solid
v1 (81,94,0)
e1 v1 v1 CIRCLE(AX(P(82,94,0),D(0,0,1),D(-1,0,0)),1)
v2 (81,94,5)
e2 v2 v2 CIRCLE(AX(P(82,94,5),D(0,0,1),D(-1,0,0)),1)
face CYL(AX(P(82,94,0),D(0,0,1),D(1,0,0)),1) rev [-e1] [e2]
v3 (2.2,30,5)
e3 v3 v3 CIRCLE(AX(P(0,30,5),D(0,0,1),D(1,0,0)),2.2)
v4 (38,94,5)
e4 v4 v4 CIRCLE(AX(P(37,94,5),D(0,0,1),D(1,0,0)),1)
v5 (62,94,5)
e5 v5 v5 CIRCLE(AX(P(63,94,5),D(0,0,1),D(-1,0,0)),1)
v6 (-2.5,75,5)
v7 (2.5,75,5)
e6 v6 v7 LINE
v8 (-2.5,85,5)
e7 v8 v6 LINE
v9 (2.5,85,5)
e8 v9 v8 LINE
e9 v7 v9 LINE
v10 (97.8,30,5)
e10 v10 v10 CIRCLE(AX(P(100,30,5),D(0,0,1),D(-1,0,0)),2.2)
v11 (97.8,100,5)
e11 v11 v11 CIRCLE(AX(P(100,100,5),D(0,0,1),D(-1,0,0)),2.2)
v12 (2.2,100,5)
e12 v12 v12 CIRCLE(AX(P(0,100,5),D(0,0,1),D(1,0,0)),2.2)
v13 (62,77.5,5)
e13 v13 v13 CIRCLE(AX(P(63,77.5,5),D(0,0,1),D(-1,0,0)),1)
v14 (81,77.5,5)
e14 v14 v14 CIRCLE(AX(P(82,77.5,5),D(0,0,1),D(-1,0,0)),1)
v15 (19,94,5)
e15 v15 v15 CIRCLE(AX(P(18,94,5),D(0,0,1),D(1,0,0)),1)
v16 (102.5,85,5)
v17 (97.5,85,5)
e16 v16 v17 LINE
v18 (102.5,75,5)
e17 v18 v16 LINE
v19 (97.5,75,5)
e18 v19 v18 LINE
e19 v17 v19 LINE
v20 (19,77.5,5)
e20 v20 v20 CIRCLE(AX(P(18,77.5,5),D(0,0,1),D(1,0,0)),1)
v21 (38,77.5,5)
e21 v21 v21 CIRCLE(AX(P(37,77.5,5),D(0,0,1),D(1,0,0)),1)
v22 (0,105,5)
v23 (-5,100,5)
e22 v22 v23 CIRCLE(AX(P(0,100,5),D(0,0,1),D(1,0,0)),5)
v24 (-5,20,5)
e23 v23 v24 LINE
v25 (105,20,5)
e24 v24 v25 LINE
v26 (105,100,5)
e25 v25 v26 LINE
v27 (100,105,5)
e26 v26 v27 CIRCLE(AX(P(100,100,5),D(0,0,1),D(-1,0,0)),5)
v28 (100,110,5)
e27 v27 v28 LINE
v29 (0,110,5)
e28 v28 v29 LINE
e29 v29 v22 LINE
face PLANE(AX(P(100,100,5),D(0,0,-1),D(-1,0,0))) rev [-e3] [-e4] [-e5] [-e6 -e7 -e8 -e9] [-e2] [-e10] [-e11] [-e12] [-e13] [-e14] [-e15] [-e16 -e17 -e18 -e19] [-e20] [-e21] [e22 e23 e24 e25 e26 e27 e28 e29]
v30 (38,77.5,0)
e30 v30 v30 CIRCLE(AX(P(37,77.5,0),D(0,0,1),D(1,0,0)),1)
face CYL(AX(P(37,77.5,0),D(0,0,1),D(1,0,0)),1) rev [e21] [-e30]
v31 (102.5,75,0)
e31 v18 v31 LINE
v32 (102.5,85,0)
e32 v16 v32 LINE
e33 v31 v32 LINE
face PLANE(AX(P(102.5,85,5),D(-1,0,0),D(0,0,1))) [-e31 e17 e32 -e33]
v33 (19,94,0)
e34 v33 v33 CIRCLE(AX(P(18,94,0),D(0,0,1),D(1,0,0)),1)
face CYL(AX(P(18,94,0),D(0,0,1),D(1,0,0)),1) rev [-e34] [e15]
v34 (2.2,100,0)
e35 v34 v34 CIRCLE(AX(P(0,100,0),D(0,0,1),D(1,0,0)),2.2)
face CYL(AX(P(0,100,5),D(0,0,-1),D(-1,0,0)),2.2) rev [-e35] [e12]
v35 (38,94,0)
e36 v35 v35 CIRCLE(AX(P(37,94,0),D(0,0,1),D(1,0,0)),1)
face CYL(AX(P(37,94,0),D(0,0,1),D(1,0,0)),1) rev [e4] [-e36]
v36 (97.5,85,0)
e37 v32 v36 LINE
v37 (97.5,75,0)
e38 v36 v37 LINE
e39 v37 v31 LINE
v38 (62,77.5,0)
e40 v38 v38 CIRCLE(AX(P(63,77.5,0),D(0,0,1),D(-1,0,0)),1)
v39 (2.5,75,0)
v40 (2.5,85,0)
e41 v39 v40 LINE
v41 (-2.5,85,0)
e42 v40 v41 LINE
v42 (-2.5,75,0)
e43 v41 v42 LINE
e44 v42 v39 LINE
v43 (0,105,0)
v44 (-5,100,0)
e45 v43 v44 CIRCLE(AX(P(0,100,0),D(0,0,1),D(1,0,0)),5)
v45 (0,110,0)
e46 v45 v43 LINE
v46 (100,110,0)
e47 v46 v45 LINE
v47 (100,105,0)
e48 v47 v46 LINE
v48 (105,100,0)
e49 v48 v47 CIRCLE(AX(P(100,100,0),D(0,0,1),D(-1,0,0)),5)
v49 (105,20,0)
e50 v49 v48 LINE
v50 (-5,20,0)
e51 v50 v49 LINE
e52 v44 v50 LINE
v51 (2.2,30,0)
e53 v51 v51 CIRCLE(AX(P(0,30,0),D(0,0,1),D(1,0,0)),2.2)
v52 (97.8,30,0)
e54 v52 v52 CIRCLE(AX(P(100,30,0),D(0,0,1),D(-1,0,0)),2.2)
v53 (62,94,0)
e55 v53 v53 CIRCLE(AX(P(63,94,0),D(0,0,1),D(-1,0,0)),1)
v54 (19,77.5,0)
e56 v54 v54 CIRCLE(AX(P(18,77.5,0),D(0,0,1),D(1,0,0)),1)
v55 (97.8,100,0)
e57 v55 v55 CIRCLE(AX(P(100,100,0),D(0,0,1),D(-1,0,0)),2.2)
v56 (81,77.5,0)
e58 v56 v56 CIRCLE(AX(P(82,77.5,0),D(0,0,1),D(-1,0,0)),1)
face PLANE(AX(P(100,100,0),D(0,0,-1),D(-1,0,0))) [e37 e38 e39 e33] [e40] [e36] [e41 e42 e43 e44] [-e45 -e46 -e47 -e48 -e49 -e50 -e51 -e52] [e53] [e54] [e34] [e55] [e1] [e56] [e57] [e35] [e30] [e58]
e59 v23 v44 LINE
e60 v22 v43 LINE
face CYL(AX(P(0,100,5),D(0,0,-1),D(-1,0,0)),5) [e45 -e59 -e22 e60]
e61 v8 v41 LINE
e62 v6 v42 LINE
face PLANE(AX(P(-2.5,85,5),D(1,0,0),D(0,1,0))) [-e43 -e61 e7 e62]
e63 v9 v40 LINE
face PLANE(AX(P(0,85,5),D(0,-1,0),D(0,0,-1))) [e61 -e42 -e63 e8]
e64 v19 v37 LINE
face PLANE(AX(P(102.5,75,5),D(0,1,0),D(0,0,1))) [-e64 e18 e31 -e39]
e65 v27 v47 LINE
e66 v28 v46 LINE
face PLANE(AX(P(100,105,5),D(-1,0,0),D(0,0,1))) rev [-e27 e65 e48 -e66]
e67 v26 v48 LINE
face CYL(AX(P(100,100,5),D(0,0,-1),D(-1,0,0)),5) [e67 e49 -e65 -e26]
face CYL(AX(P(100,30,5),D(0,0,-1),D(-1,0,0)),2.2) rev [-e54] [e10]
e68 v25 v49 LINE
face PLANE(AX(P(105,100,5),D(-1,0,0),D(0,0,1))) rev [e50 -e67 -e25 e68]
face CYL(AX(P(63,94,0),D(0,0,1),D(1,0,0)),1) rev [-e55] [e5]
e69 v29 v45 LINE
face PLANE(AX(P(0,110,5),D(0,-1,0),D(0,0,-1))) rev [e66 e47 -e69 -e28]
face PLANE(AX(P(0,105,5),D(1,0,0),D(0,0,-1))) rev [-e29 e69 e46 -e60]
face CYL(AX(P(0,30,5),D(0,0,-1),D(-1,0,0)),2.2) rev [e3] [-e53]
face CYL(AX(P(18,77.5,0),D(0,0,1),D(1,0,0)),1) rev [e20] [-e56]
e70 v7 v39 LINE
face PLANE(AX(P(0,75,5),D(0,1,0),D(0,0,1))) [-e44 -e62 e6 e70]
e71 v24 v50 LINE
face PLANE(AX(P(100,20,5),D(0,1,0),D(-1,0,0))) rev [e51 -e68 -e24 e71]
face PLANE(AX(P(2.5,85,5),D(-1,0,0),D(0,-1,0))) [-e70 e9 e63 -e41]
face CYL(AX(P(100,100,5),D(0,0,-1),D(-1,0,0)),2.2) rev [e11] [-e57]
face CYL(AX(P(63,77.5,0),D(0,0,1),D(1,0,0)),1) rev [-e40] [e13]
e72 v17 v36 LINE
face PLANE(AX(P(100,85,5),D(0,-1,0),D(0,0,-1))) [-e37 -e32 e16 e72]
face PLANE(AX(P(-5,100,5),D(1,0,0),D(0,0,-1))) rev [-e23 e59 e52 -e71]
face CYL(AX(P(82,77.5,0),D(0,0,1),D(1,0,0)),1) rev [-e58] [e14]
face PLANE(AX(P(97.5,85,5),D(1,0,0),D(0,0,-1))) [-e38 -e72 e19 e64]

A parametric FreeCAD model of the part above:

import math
import FreeCAD as App
import Part
import Sketcher
Q = App.Units.Quantity

doc = App.newDocument("Part")
body = doc.addObject("PartDesign::Body", "Body")

# Sketch on XY plane
sketch1 = body.newObject("Sketcher::SketchObject", "Sketch")
sketch1.AttachmentSupport = (doc.getObject("XY_Plane"), [""])
sketch1.MapMode = "FlatFace"
sketch1.addGeometry([
    Part.LineSegment(App.Vector(0, 110, 0), App.Vector(0, 105, 0)),  # 0
    Part.ArcOfCircle(Part.Circle(App.Vector(0, 100, 0), App.Vector(0, 0, 1), 5), math.radians(90), math.radians(180)),  # 1
    Part.LineSegment(App.Vector(-5, 100, 0), App.Vector(-5, 20, 0)),  # 2
    Part.LineSegment(App.Vector(-5, 20, 0), App.Vector(105, 20, 0)),  # 3
    Part.LineSegment(App.Vector(105, 20, 0), App.Vector(105, 100, 0)),  # 4
    Part.ArcOfCircle(Part.Circle(App.Vector(100, 100, 0), App.Vector(0, 0, 1), 5), math.radians(0), math.radians(90)),  # 5
    Part.LineSegment(App.Vector(100, 105, 0), App.Vector(100, 110, 0)),  # 6
    Part.LineSegment(App.Vector(100, 110, 0), App.Vector(0, 110, 0)),  # 7
    Part.Circle(App.Vector(100, 30, 0), App.Vector(0, 0, 1), 2.2),  # 8
    Part.Circle(App.Vector(0, 30, 0), App.Vector(0, 0, 1), 2.2),  # 9
    Part.LineSegment(App.Vector(102.5, 75, 0), App.Vector(97.5, 75, 0)),  # 10
    Part.LineSegment(App.Vector(97.5, 75, 0), App.Vector(97.5, 85, 0)),  # 11
    Part.LineSegment(App.Vector(97.5, 85, 0), App.Vector(102.5, 85, 0)),  # 12
    Part.LineSegment(App.Vector(102.5, 85, 0), App.Vector(102.5, 75, 0)),  # 13
    Part.Circle(App.Vector(100, 100, 0), App.Vector(0, 0, 1), 2.2),  # 14
    Part.LineSegment(App.Vector(2.5, 85, 0), App.Vector(2.5, 75, 0)),  # 15
    Part.LineSegment(App.Vector(2.5, 75, 0), App.Vector(-2.5, 75, 0)),  # 16
    Part.LineSegment(App.Vector(-2.5, 75, 0), App.Vector(-2.5, 85, 0)),  # 17
    Part.LineSegment(App.Vector(-2.5, 85, 0), App.Vector(2.5, 85, 0)),  # 18
    Part.Circle(App.Vector(0, 100, 0), App.Vector(0, 0, 1), 2.2),  # 19
], False)
sketch1.addConstraint([
    Sketcher.Constraint("Coincident", 0, 2, 1, 1),
    Sketcher.Constraint("Tangent", 1, 2, 2, 1),
    Sketcher.Constraint("Coincident", 2, 2, 3, 1),
    Sketcher.Constraint("Coincident", 3, 2, 4, 1),
    Sketcher.Constraint("Tangent", 4, 2, 5, 1),
    Sketcher.Constraint("Coincident", 5, 2, 6, 1),
    Sketcher.Constraint("Coincident", 6, 2, 7, 1),
    Sketcher.Constraint("Coincident", 7, 2, 0, 1),
    Sketcher.Constraint("Coincident", 10, 2, 11, 1),
    Sketcher.Constraint("Coincident", 11, 2, 12, 1),
    Sketcher.Constraint("Coincident", 12, 2, 13, 1),
    Sketcher.Constraint("Coincident", 13, 2, 10, 1),
    Sketcher.Constraint("Coincident", 15, 2, 16, 1),
    Sketcher.Constraint("Coincident", 16, 2, 17, 1),
    Sketcher.Constraint("Coincident", 17, 2, 18, 1),
    Sketcher.Constraint("Coincident", 18, 2, 15, 1),
    Sketcher.Constraint("Vertical", 0),
    Sketcher.Constraint("Vertical", 2),
    Sketcher.Constraint("Horizontal", 3),
    Sketcher.Constraint("Vertical", 4),
    Sketcher.Constraint("Vertical", 6),
    Sketcher.Constraint("Horizontal", 7),
    Sketcher.Constraint("Horizontal", 10),
    Sketcher.Constraint("Vertical", 11),
    Sketcher.Constraint("Horizontal", 12),
    Sketcher.Constraint("Vertical", 13),
    Sketcher.Constraint("Vertical", 15),
    Sketcher.Constraint("Horizontal", 16),
    Sketcher.Constraint("Vertical", 17),
    Sketcher.Constraint("Horizontal", 18),
    Sketcher.Constraint("Coincident", 14, 3, 5, 3),
    Sketcher.Constraint("Coincident", 19, 3, 1, 3),
    Sketcher.Constraint("Equal", 1, 5),
    Sketcher.Constraint("Equal", 8, 9),
    Sketcher.Constraint("Equal", 9, 14),
    Sketcher.Constraint("Equal", 14, 19),
    Sketcher.Constraint("PointOnObject", 1, 3, -2),
    Sketcher.Constraint("PointOnObject", 9, 3, -2),
    Sketcher.Constraint("PointOnObject", 0, 2, -2),
    Sketcher.Constraint("Horizontal", 1, 3, 5, 3),
    Sketcher.Constraint("Horizontal", 8, 3, 9, 3),
    Sketcher.Constraint("Horizontal", 13, 2, 15, 2),
    Sketcher.Constraint("Horizontal", 12, 2, 17, 2),
    Sketcher.Constraint("Vertical", 5, 3, 8, 3),
    Sketcher.Constraint("Vertical", 14, 3, 5, 2),
    Sketcher.Constraint("Equal", 12, 16),
    Sketcher.Constraint("Equal", 18, 0),
    Sketcher.Constraint("Radius", 1, Q("5 mm")),
    Sketcher.Constraint("Diameter", 8, Q("4.4 mm")),
    Sketcher.Constraint("DistanceX", 3, 1, 3, 2, Q("110 mm")),
    Sketcher.Constraint("DistanceX", 10, 2, 10, 1, Q("5 mm")),
    Sketcher.Constraint("DistanceY", 2, 2, 2, 1, Q("80 mm")),
    Sketcher.Constraint("DistanceY", 11, 1, 11, 2, Q("10 mm")),
    Sketcher.Constraint("DistanceY", -1, 1, 1, 3, Q("100 mm")),
    Sketcher.Constraint("DistanceY", -1, 1, 8, 3, Q("30 mm")),
    Sketcher.Constraint("DistanceY", -1, 1, 10, 2, Q("75 mm")),
    Sketcher.Constraint("DistanceX", -1, 1, 10, 2, Q("97.5 mm")),
    Sketcher.Constraint("DistanceX", -1, 1, 15, 2, Q("2.5 mm")),
])
pad1 = body.newObject("PartDesign::Pad", "Pad")
pad1.Profile = sketch1
pad1.Length = 5

# Sketch on XY plane
sketch2 = body.newObject("Sketcher::SketchObject", "Sketch001")
sketch2.AttachmentSupport = (doc.getObject("XY_Plane"), [""])
sketch2.MapMode = "FlatFace"
sketch2.AttachmentOffset = App.Placement(App.Vector(0, 0, 5), App.Rotation())
sketch2.addGeometry([
    Part.Circle(App.Vector(18, 94, 0), App.Vector(0, 0, 1), 1),  # 0
    Part.Circle(App.Vector(37, 94, 0), App.Vector(0, 0, 1), 1),  # 1
    Part.Circle(App.Vector(18, 77.5, 0), App.Vector(0, 0, 1), 1),  # 2
    Part.Circle(App.Vector(37, 77.5, 0), App.Vector(0, 0, 1), 1),  # 3
    Part.Circle(App.Vector(63, 77.5, 0), App.Vector(0, 0, 1), 1),  # 4
    Part.Circle(App.Vector(82, 77.5, 0), App.Vector(0, 0, 1), 1),  # 5
    Part.Circle(App.Vector(63, 94, 0), App.Vector(0, 0, 1), 1),  # 6
    Part.Circle(App.Vector(82, 94, 0), App.Vector(0, 0, 1), 1),  # 7
], False)
sketch2.addConstraint([
    Sketcher.Constraint("Equal", 0, 1),
    Sketcher.Constraint("Equal", 1, 2),
    Sketcher.Constraint("Equal", 2, 3),
    Sketcher.Constraint("Equal", 3, 4),
    Sketcher.Constraint("Equal", 4, 5),
    Sketcher.Constraint("Equal", 5, 6),
    Sketcher.Constraint("Equal", 6, 7),
    Sketcher.Constraint("Horizontal", 0, 3, 1, 3),
    Sketcher.Constraint("Horizontal", 2, 3, 3, 3),
    Sketcher.Constraint("Horizontal", 3, 3, 4, 3),
    Sketcher.Constraint("Horizontal", 4, 3, 5, 3),
    Sketcher.Constraint("Horizontal", 1, 3, 6, 3),
    Sketcher.Constraint("Horizontal", 6, 3, 7, 3),
    Sketcher.Constraint("Vertical", 0, 3, 2, 3),
    Sketcher.Constraint("Vertical", 1, 3, 3, 3),
    Sketcher.Constraint("Vertical", 4, 3, 6, 3),
    Sketcher.Constraint("Vertical", 5, 3, 7, 3),
    Sketcher.Constraint("Diameter", 0, Q("2 mm")),
    Sketcher.Constraint("DistanceX", -1, 1, 0, 3, Q("18 mm")),
    Sketcher.Constraint("DistanceY", -1, 1, 0, 3, Q("94 mm")),
    Sketcher.Constraint("DistanceX", -1, 1, 1, 3, Q("37 mm")),
    Sketcher.Constraint("DistanceX", -1, 1, 4, 3, Q("63 mm")),
    Sketcher.Constraint("DistanceX", -1, 1, 5, 3, Q("82 mm")),
    Sketcher.Constraint("DistanceY", -1, 1, 2, 3, Q("77.5 mm")),
])
pocket1 = body.newObject("PartDesign::Pocket", "Pocket")
pocket1.Profile = sketch2
pocket1.Type = "ThroughAll"

doc.recompute()
